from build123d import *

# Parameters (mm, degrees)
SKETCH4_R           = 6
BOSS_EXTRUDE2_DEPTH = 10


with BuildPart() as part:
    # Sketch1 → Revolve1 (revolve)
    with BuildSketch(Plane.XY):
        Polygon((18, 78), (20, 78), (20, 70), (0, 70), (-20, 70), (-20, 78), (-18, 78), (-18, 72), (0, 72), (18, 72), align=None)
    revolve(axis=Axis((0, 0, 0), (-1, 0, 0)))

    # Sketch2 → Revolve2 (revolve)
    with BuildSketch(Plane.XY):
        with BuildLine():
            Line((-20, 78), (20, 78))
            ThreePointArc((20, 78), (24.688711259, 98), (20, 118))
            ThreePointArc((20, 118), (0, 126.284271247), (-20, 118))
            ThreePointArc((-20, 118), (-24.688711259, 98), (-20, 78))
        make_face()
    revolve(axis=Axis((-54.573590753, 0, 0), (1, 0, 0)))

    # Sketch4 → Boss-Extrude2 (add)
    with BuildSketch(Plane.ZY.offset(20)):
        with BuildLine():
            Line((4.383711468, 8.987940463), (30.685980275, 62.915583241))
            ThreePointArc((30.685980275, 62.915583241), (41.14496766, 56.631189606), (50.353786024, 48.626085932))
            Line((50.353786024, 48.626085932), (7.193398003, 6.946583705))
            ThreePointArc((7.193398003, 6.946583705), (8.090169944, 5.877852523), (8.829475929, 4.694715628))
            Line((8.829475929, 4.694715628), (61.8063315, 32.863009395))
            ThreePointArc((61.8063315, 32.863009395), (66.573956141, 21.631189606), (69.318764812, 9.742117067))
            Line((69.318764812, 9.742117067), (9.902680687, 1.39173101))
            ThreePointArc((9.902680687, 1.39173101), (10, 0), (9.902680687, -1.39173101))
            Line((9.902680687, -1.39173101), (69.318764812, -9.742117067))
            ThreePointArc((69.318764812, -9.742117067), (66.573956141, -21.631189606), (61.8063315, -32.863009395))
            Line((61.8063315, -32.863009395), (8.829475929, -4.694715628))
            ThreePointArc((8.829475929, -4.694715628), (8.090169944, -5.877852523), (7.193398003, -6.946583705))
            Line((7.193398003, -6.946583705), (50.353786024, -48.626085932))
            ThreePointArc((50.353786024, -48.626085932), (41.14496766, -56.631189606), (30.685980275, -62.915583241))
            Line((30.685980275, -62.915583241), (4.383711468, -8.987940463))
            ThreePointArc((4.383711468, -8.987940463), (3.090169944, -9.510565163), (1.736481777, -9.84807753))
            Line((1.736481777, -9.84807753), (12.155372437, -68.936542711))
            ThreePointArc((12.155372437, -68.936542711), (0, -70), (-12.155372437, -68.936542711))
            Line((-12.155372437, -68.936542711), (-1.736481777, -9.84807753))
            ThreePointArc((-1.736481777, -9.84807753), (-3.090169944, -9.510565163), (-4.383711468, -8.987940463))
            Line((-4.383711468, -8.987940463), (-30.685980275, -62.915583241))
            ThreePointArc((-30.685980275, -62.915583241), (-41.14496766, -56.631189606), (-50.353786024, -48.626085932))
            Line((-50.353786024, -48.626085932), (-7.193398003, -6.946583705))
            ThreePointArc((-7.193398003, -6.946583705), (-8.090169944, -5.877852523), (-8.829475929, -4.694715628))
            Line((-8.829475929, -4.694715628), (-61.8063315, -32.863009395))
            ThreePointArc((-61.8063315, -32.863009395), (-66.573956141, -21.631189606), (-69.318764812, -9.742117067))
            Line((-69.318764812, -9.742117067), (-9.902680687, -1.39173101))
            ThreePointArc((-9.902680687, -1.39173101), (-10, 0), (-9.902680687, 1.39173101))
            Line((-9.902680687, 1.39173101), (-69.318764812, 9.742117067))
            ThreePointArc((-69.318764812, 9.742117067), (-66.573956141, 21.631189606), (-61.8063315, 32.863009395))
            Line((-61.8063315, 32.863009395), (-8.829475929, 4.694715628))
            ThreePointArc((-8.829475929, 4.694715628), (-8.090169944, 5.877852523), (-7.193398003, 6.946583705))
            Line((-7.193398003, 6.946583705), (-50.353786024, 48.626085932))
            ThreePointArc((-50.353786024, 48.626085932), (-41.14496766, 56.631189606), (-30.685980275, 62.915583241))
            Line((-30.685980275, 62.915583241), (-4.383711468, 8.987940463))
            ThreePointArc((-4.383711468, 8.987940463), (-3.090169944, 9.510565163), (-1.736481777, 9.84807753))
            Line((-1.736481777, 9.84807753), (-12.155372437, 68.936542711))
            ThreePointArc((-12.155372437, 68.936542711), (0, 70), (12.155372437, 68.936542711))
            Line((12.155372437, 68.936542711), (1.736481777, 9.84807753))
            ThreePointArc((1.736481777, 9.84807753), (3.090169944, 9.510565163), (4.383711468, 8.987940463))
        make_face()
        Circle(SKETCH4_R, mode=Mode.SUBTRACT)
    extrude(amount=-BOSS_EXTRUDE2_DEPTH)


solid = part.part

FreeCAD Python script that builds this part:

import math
import FreeCAD as App
import Part
import Sketcher
Q = App.Units.Quantity

doc = App.newDocument("Part")
body = doc.addObject("PartDesign::Body", "Body")

# Sketch on XY plane
sketch1 = body.newObject("Sketcher::SketchObject", "Sketch")
sketch1.AttachmentSupport = (doc.getObject("XY_Plane"), [""])
sketch1.MapMode = "FlatFace"
sketch1.addGeometry(Part.LineSegment(App.Vector(20, 78, 0), App.Vector(18, 78, 0)), False)
sketch1.addGeometry(Part.LineSegment(App.Vector(18, 78, 0), App.Vector(18, 72, 0)), False)
sketch1.addGeometry(Part.LineSegment(App.Vector(18, 72, 0), App.Vector(-18, 72, 0)), False)
sketch1.addGeometry(Part.LineSegment(App.Vector(-18, 72, 0), App.Vector(-18, 78, 0)), False)
sketch1.addGeometry(Part.LineSegment(App.Vector(-18, 78, 0), App.Vector(-20, 78, 0)), False)
sketch1.addGeometry(Part.LineSegment(App.Vector(-20, 78, 0), App.Vector(-20, 70, 0)), False)
sketch1.addGeometry(Part.LineSegment(App.Vector(-20, 70, 0), App.Vector(20, 70, 0)), False)
sketch1.addGeometry(Part.LineSegment(App.Vector(20, 70, 0), App.Vector(20, 78, 0)), False)
sketch1.addConstraint(Sketcher.Constraint("Coincident", 0, 2, 1, 1))
sketch1.addConstraint(Sketcher.Constraint("Coincident", 1, 2, 2, 1))
sketch1.addConstraint(Sketcher.Constraint("Coincident", 2, 2, 3, 1))
sketch1.addConstraint(Sketcher.Constraint("Coincident", 3, 2, 4, 1))
sketch1.addConstraint(Sketcher.Constraint("Coincident", 4, 2, 5, 1))
sketch1.addConstraint(Sketcher.Constraint("Coincident", 5, 2, 6, 1))
sketch1.addConstraint(Sketcher.Constraint("Coincident", 6, 2, 7, 1))
sketch1.addConstraint(Sketcher.Constraint("Coincident", 7, 2, 0, 1))
sketch1.addConstraint(Sketcher.Constraint("Horizontal", 0))
sketch1.addConstraint(Sketcher.Constraint("Vertical", 1))
sketch1.addConstraint(Sketcher.Constraint("Horizontal", 2))
sketch1.addConstraint(Sketcher.Constraint("Vertical", 3))
sketch1.addConstraint(Sketcher.Constraint("Horizontal", 4))
sketch1.addConstraint(Sketcher.Constraint("Vertical", 5))
sketch1.addConstraint(Sketcher.Constraint("Horizontal", 6))
sketch1.addConstraint(Sketcher.Constraint("Vertical", 7))
sketch1.addConstraint(Sketcher.Constraint("Symmetric", 0, 2, 3, 2, -2))
sketch1.addConstraint(Sketcher.Constraint("Equal", 0, 4))
sketch1.addConstraint(Sketcher.Constraint("DistanceX", 0, 2, 0, 1, Q("2 mm")))
sketch1.addConstraint(Sketcher.Constraint("DistanceX", 2, 2, 2, 1, Q("36 mm")))
sketch1.addConstraint(Sketcher.Constraint("DistanceY", 1, 2, 1, 1, Q("6 mm")))
sketch1.addConstraint(Sketcher.Constraint("DistanceY", 5, 2, 5, 1, Q("8 mm")))
sketch1.addConstraint(Sketcher.Constraint("DistanceY", -1, 1, 0, 2, Q("78 mm")))
revolution = body.newObject("PartDesign::Revolution", "Revolution")
revolution.Profile = sketch1
revolution.ReferenceAxis = (sketch1, ["H_Axis"])
revolution.Angle = 360

# Sketch on XY plane
sketch2 = body.newObject("Sketcher::SketchObject", "Sketch001")
sketch2.AttachmentSupport = (doc.getObject("XY_Plane"), [""])
sketch2.MapMode = "FlatFace"
sketch2.addGeometry(Part.LineSegment(App.Vector(-20, 78, 0), App.Vector(20, 78, 0)), False)
sketch2.addGeometry(Part.ArcOfCircle(Part.Circle(App.Vector(-20, 98, 0), App.Vector(0, 0, 1), 45), math.radians(-26), math.radians(26)), False)
sketch2.addGeometry(Part.ArcOfCircle(Part.Circle(App.Vector(0, 98, 0), App.Vector(0, 0, 1), 28), math.radians(45), math.radians(135)), False)
sketch2.addGeometry(Part.ArcOfCircle(Part.Circle(App.Vector(20, 98, 0), App.Vector(0, 0, 1), 45), math.radians(154), math.radians(206)), False)
sketch2.addConstraint(Sketcher.Constraint("Coincident", 0, 2, 1, 1))
sketch2.addConstraint(Sketcher.Constraint("Coincident", 1, 2, 2, 1))
sketch2.addConstraint(Sketcher.Constraint("Coincident", 2, 2, 3, 1))
sketch2.addConstraint(Sketcher.Constraint("Coincident", 3, 2, 0, 1))
sketch2.addConstraint(Sketcher.Constraint("Horizontal", 0))
sketch2.addConstraint(Sketcher.Constraint("Equal", 1, 3))
sketch2.addConstraint(Sketcher.Constraint("Symmetric", 1, 3, 3, 3, -2))
sketch2.addConstraint(Sketcher.Constraint("PointOnObject", 2, 3, -2))
sketch2.addConstraint(Sketcher.Constraint("Horizontal", 1, 3, 2, 3))
sketch2.addConstraint(Sketcher.Constraint("Vertical", 0, 2, 1, 2))
sketch2.addConstraint(Sketcher.Constraint("Radius", 1, Q("45 mm")))
sketch2.addConstraint(Sketcher.Constraint("DistanceX", 0, 1, 0, 2, Q("40 mm")))
sketch2.addConstraint(Sketcher.Constraint("DistanceY", -1, 1, 1, 3, Q("98 mm")))
sketch2.addConstraint(Sketcher.Constraint("DistanceY", -1, 1, 0, 2, Q("78 mm")))
revolution2 = body.newObject("PartDesign::Revolution", "Revolution001")
revolution2.Profile = sketch2
revolution2.ReferenceAxis = (sketch2, ["H_Axis"])
revolution2.Angle = 360

# Sketch on YZ plane
sketch3 = body.newObject("Sketcher::SketchObject", "Sketch002")
sketch3.AttachmentSupport = (doc.getObject("YZ_Plane"), [""])
sketch3.MapMode = "FlatFace"
sketch3.AttachmentOffset = App.Placement(App.Vector(0, 0, -20), App.Rotation())
sketch3.addGeometry(Part.LineSegment(App.Vector(62.9, 30.7, 0), App.Vector(9, 4.4, 0)), False)
sketch3.addGeometry(Part.ArcOfCircle(Part.Circle(App.Vector(0, 0, 0), App.Vector(0, 0, 1), 10), math.radians(10), math.radians(26)), False)
sketch3.addGeometry(Part.LineSegment(App.Vector(9.8, 1.7, 0), App.Vector(68.9, 12.2, 0)), False)
sketch3.addGeometry(Part.ArcOfCircle(Part.Circle(App.Vector(0, 0, 0), App.Vector(0, 0, 1), 70), math.radians(-10), math.radians(10)), False)
sketch3.addGeometry(Part.LineSegment(App.Vector(68.9, -12.2, 0), App.Vector(9.8, -1.7, 0)), False)
sketch3.addGeometry(Part.ArcOfCircle(Part.Circle(App.Vector(0, 0, 0), App.Vector(0, 0, 1), 10), math.radians(-26), math.radians(-10)), False)
sketch3.addGeometry(Part.LineSegment(App.Vector(9, -4.4, 0), App.Vector(62.9, -30.7, 0)), False)
sketch3.addGeometry(Part.ArcOfCircle(Part.Circle(App.Vector(0, 0, 0), App.Vector(0, 0, 1), 70), math.radians(-46), math.radians(-26)), False)
sketch3.addGeometry(Part.LineSegment(App.Vector(48.6, -50.4, 0), App.Vector(6.9, -7.2, 0)), False)
sketch3.addGeometry(Part.ArcOfCircle(Part.Circle(App.Vector(0, 0, 0), App.Vector(0, 0, 1), 10), math.radians(-62), math.radians(-46)), False)
sketch3.addGeometry(Part.LineSegment(App.Vector(4.7, -8.8, 0), App.Vector(32.9, -61.8, 0)), False)
sketch3.addGeometry(Part.ArcOfCircle(Part.Circle(App.Vector(0, 0, 0), App.Vector(0, 0, 1), 70), math.radians(-82), math.radians(-62)), False)
sketch3.addGeometry(Part.LineSegment(App.Vector(9.7, -69.3, 0), App.Vector(1.4, -9.9, 0)), False)
sketch3.addGeometry(Part.ArcOfCircle(Part.Circle(App.Vector(0, 0, 0), App.Vector(0, 0, 1), 10), math.radians(-98), math.radians(-82)), False)
sketch3.addGeometry(Part.LineSegment(App.Vector(-1.4, -9.9, 0), App.Vector(-9.7, -69.3, 0)), False)
sketch3.addGeometry(Part.ArcOfCircle(Part.Circle(App.Vector(0, 0, 0), App.Vector(0, 0, 1), 70), math.radians(-118), math.radians(-98)), False)
sketch3.addGeometry(Part.LineSegment(App.Vector(-32.9, -61.8, 0), App.Vector(-4.7, -8.8, 0)), False)
sketch3.addGeometry(Part.ArcOfCircle(Part.Circle(App.Vector(0, 0, 0), App.Vector(0, 0, 1), 10), math.radians(-134), math.radians(-118)), False)
sketch3.addGeometry(Part.LineSegment(App.Vector(-6.9, -7.2, 0), App.Vector(-48.6, -50.4, 0)), False)
sketch3.addGeometry(Part.ArcOfCircle(Part.Circle(App.Vector(0, 0, 0), App.Vector(0, 0, 1), 70), math.radians(-154), math.radians(-134)), False)
sketch3.addGeometry(Part.LineSegment(App.Vector(-62.9, -30.7, 0), App.Vector(-9, -4.4, 0)), False)
sketch3.addGeometry(Part.ArcOfCircle(Part.Circle(App.Vector(0, 0, 0), App.Vector(0, 0, 1), 10), math.radians(-170), math.radians(-154)), False)
sketch3.addGeometry(Part.LineSegment(App.Vector(-9.8, -1.7, 0), App.Vector(-68.9, -12.2, 0)), False)
sketch3.addGeometry(Part.ArcOfCircle(Part.Circle(App.Vector(0, 0, 0), App.Vector(0, 0, 1), 70), math.radians(170), math.radians(190)), False)
sketch3.addGeometry(Part.LineSegment(App.Vector(-68.9, 12.2, 0), App.Vector(-9.8, 1.7, 0)), False)
sketch3.addGeometry(Part.ArcOfCircle(Part.Circle(App.Vector(0, 0, 0), App.Vector(0, 0, 1), 10), math.radians(154), math.radians(170)), False)
sketch3.addGeometry(Part.LineSegment(App.Vector(-9, 4.4, 0), App.Vector(-62.9, 30.7, 0)), False)
sketch3.addGeometry(Part.ArcOfCircle(Part.Circle(App.Vector(0, 0, 0), App.Vector(0, 0, 1), 70), math.radians(134), math.radians(154)), False)
sketch3.addGeometry(Part.LineSegment(App.Vector(-48.6, 50.4, 0), App.Vector(-6.9, 7.2, 0)), False)
sketch3.addGeometry(Part.ArcOfCircle(Part.Circle(App.Vector(0, 0, 0), App.Vector(0, 0, 1), 10), math.radians(118), math.radians(134)), False)
sketch3.addGeometry(Part.LineSegment(App.Vector(-4.7, 8.8, 0), App.Vector(-32.9, 61.8, 0)), False)
sketch3.addGeometry(Part.ArcOfCircle(Part.Circle(App.Vector(0, 0, 0), App.Vector(0, 0, 1), 70), math.radians(98), math.radians(118)), False)
sketch3.addGeometry(Part.LineSegment(App.Vector(-9.7, 69.3, 0), App.Vector(-1.4, 9.9, 0)), False)
sketch3.addGeometry(Part.ArcOfCircle(Part.Circle(App.Vector(0, 0, 0), App.Vector(0, 0, 1), 10), math.radians(82), math.radians(98)), False)
sketch3.addGeometry(Part.LineSegment(App.Vector(1.4, 9.9, 0), App.Vector(9.7, 69.3, 0)), False)
sketch3.addGeometry(Part.ArcOfCircle(Part.Circle(App.Vector(0, 0, 0), App.Vector(0, 0, 1), 70), math.radians(62), math.radians(82)), False)
sketch3.addGeometry(Part.LineSegment(App.Vector(32.9, 61.8, 0), App.Vector(4.7, 8.8, 0)), False)
sketch3.addGeometry(Part.ArcOfCircle(Part.Circle(App.Vector(0, 0, 0), App.Vector(0, 0, 1), 10), math.radians(46), math.radians(62)), False)
sketch3.addGeometry(Part.LineSegment(App.Vector(6.9, 7.2, 0), App.Vector(48.6, 50.4, 0)), False)
sketch3.addGeometry(Part.ArcOfCircle(Part.Circle(App.Vector(0, 0, 0), App.Vector(0, 0, 1), 70), math.radians(26), math.radians(46)), False)
sketch3.addGeometry(Part.Circle(App.Vector(0, 0, 0), App.Vector(0, 0, 1), 6), False)
sketch3.addConstraint(Sketcher.Constraint("Coincident", 0, 2, 1, 2))
sketch3.addConstraint(Sketcher.Constraint("Coincident", 1, 1, 2, 1))
sketch3.addConstraint(Sketcher.Constraint("Coincident", 2, 2, 3, 2))
sketch3.addConstraint(Sketcher.Constraint("Coincident", 3, 1, 4, 1))
sketch3.addConstraint(Sketcher.Constraint("Coincident", 4, 2, 5, 2))
sketch3.addConstraint(Sketcher.Constraint("Coincident", 5, 1, 6, 1))
sketch3.addConstraint(Sketcher.Constraint("Coincident", 6, 2, 7, 2))
sketch3.addConstraint(Sketcher.Constraint("Coincident", 7, 1, 8, 1))
sketch3.addConstraint(Sketcher.Constraint("Coincident", 8, 2, 9, 2))
sketch3.addConstraint(Sketcher.Constraint("Coincident", 9, 1, 10, 1))
sketch3.addConstraint(Sketcher.Constraint("Coincident", 10, 2, 11, 2))
sketch3.addConstraint(Sketcher.Constraint("Coincident", 11, 1, 12, 1))
sketch3.addConstraint(Sketcher.Constraint("Coincident", 12, 2, 13, 2))
sketch3.addConstraint(Sketcher.Constraint("Coincident", 13, 1, 14, 1))
sketch3.addConstraint(Sketcher.Constraint("Coincident", 14, 2, 15, 2))
sketch3.addConstraint(Sketcher.Constraint("Coincident", 15, 1, 16, 1))
sketch3.addConstraint(Sketcher.Constraint("Coincident", 16, 2, 17, 2))
sketch3.addConstraint(Sketcher.Constraint("Coincident", 17, 1, 18, 1))
sketch3.addConstraint(Sketcher.Constraint("Coincident", 18, 2, 19, 2))
sketch3.addConstraint(Sketcher.Constraint("Coincident", 19, 1, 20, 1))
sketch3.addConstraint(Sketcher.Constraint("Coincident", 20, 2, 21, 2))
sketch3.addConstraint(Sketcher.Constraint("Coincident", 21, 1, 22, 1))
sketch3.addConstraint(Sketcher.Constraint("Coincident", 22, 2, 23, 2))
sketch3.addConstraint(Sketcher.Constraint("Coincident", 23, 1, 24, 1))
sketch3.addConstraint(Sketcher.Constraint("Coincident", 24, 2, 25, 2))
sketch3.addConstraint(Sketcher.Constraint("Coincident", 25, 1, 26, 1))
sketch3.addConstraint(Sketcher.Constraint("Coincident", 26, 2, 27, 2))
sketch3.addConstraint(Sketcher.Constraint("Coincident", 27, 1, 28, 1))
sketch3.addConstraint(Sketcher.Constraint("Coincident", 28, 2, 29, 2))
sketch3.addConstraint(Sketcher.Constraint("Coincident", 29, 1, 30, 1))
sketch3.addConstraint(Sketcher.Constraint("Coincident", 30, 2, 31, 2))
sketch3.addConstraint(Sketcher.Constraint("Coincident", 31, 1, 32, 1))
sketch3.addConstraint(Sketcher.Constraint("Coincident", 32, 2, 33, 2))
sketch3.addConstraint(Sketcher.Constraint("Coincident", 33, 1, 34, 1))
sketch3.addConstraint(Sketcher.Constraint("Coincident", 34, 2, 35, 2))
sketch3.addConstraint(Sketcher.Constraint("Coincident", 35, 1, 36, 1))
sketch3.addConstraint(Sketcher.Constraint("Coincident", 36, 2, 37, 2))
sketch3.addConstraint(Sketcher.Constraint("Coincident", 37, 1, 38, 1))
sketch3.addConstraint(Sketcher.Constraint("Coincident", 38, 2, 39, 2))
sketch3.addConstraint(Sketcher.Constraint("Coincident", 39, 1, 0, 1))
sketch3.addConstraint(Sketcher.Constraint("Coincident", 1, 3, -1, 1))
sketch3.addConstraint(Sketcher.Constraint("Coincident", 3, 3, -1, 1))
sketch3.addConstraint(Sketcher.Constraint("Coincident", 5, 3, -1, 1))
sketch3.addConstraint(Sketcher.Constraint("Coincident", 7, 3, -1, 1))
sketch3.addConstraint(Sketcher.Constraint("Coincident", 9, 3, -1, 1))
sketch3.addConstraint(Sketcher.Constraint("Coincident", 11, 3, -1, 1))
sketch3.addConstraint(Sketcher.Constraint("Coincident", 13, 3, -1, 1))
sketch3.addConstraint(Sketcher.Constraint("Coincident", 15, 3, -1, 1))
sketch3.addConstraint(Sketcher.Constraint("Coincident", 17, 3, -1, 1))
sketch3.addConstraint(Sketcher.Constraint("Coincident", 19, 3, -1, 1))
sketch3.addConstraint(Sketcher.Constraint("Coincident", 21, 3, -1, 1))
sketch3.addConstraint(Sketcher.Constraint("Coincident", 23, 3, -1, 1))
sketch3.addConstraint(Sketcher.Constraint("Coincident", 25, 3, -1, 1))
sketch3.addConstraint(Sketcher.Constraint("Coincident", 27, 3, -1, 1))
sketch3.addConstraint(Sketcher.Constraint("Coincident", 29, 3, -1, 1))
sketch3.addConstraint(Sketcher.Constraint("Coincident", 31, 3, -1, 1))
sketch3.addConstraint(Sketcher.Constraint("Coincident", 33, 3, -1, 1))
sketch3.addConstraint(Sketcher.Constraint("Coincident", 35, 3, -1, 1))
sketch3.addConstraint(Sketcher.Constraint("Coincident", 37, 3, -1, 1))
sketch3.addConstraint(Sketcher.Constraint("Coincident", 39, 3, -1, 1))
sketch3.addConstraint(Sketcher.Constraint("Coincident", 40, 3, -1, 1))
sketch3.addConstraint(Sketcher.Constraint("Equal", 1, 5))
sketch3.addConstraint(Sketcher.Constraint("Equal", 3, 7))
sketch3.addConstraint(Sketcher.Constraint("Equal", 5, 9))
sketch3.addConstraint(Sketcher.Constraint("Equal", 7, 11))
sketch3.addConstraint(Sketcher.Constraint("Equal", 9, 13))
sketch3.addConstraint(Sketcher.Constraint("Equal", 11, 15))
sketch3.addConstraint(Sketcher.Constraint("Equal", 13, 17))
sketch3.addConstraint(Sketcher.Constraint("Equal", 15, 19))
sketch3.addConstraint(Sketcher.Constraint("Equal", 17, 21))
sketch3.addConstraint(Sketcher.Constraint("Equal", 19, 23))
sketch3.addConstraint(Sketcher.Constraint("Equal", 21, 25))
sketch3.addConstraint(Sketcher.Constraint("Equal", 23, 27))
sketch3.addConstraint(Sketcher.Constraint("Equal", 25, 29))
sketch3.addConstraint(Sketcher.Constraint("Equal", 27, 31))
sketch3.addConstraint(Sketcher.Constraint("Equal", 29, 33))
sketch3.addConstraint(Sketcher.Constraint("Equal", 31, 35))
sketch3.addConstraint(Sketcher.Constraint("Equal", 33, 37))
sketch3.addConstraint(Sketcher.Constraint("Equal", 35, 39))
sketch3.addConstraint(Sketcher.Constraint("Parallel", 0, 20))
sketch3.addConstraint(Sketcher.Constraint("Parallel", 2, 22))
sketch3.addConstraint(Sketcher.Constraint("Parallel", 4, 24))
sketch3.addConstraint(Sketcher.Constraint("Parallel", 6, 26))
sketch3.addConstraint(Sketcher.Constraint("Parallel", 8, 28))
sketch3.addConstraint(Sketcher.Constraint("Parallel", 10, 30))
sketch3.addConstraint(Sketcher.Constraint("Parallel", 12, 32))
sketch3.addConstraint(Sketcher.Constraint("Parallel", 14, 34))
sketch3.addConstraint(Sketcher.Constraint("Parallel", 16, 36))
sketch3.addConstraint(Sketcher.Constraint("Parallel", 18, 38))
sketch3.addConstraint(Sketcher.Constraint("Horizontal", 12, 2, 13, 1))
sketch3.addConstraint(Sketcher.Constraint("Horizontal", 11, 1, 14, 2))
sketch3.addConstraint(Sketcher.Constraint("Horizontal", 10, 2, 15, 1))
sketch3.addConstraint(Sketcher.Constraint("Horizontal", 9, 1, 16, 2))
sketch3.addConstraint(Sketcher.Constraint("Horizontal", 8, 2, 17, 1))
sketch3.addConstraint(Sketcher.Constraint("Horizontal", 7, 1, 18, 2))
sketch3.addConstraint(Sketcher.Constraint("Horizontal", 6, 2, 19, 1))
sketch3.addConstraint(Sketcher.Constraint("Horizontal", 5, 1, 20, 2))
sketch3.addConstraint(Sketcher.Constraint("Horizontal", 4, 2, 21, 1))
sketch3.addConstraint(Sketcher.Constraint("Horizontal", 3, 1, 22, 2))
sketch3.addConstraint(Sketcher.Constraint("Horizontal", 2, 2, 23, 1))
sketch3.addConstraint(Sketcher.Constraint("Horizontal", 0, 2, 25, 1))
sketch3.addConstraint(Sketcher.Constraint("Horizontal", 32, 2, 33, 1))
sketch3.addConstraint(Sketcher.Constraint("Horizontal", 30, 2, 35, 1))
sketch3.addConstraint(Sketcher.Constraint("Horizontal", 28, 2, 37, 1))
sketch3.addConstraint(Sketcher.Constraint("Vertical", 2, 2, 3, 1))
sketch3.addConstraint(Sketcher.Constraint("Vertical", 0, 2, 5, 1))
sketch3.addConstraint(Sketcher.Constraint("Vertical", 18, 2, 27, 1))
sketch3.addConstraint(Sketcher.Constraint("Vertical", 16, 2, 29, 1))
sketch3.addConstraint(Sketcher.Constraint("Vertical", 14, 2, 31, 1))
sketch3.addConstraint(Sketcher.Constraint("Diameter", 40, Q("12 mm")))
sketch3.addConstraint(Sketcher.Constraint("Radius", 1, Q("10 mm")))
sketch3.addConstraint(Sketcher.Constraint("Radius", 3, Q("70 mm")))
sketch3.addConstraint(Sketcher.Constraint("Angle", 0, Q("-154 deg")))
sketch3.addConstraint(Sketcher.Constraint("Angle", 2, Q("10 deg")))
sketch3.addConstraint(Sketcher.Constraint("Angle", 8, Q("134 deg")))
sketch3.addConstraint(Sketcher.Constraint("Angle", 10, Q("-62 deg")))
sketch3.addConstraint(Sketcher.Constraint("Angle", 12, Q("98 deg")))
sketch3.addConstraint(Sketcher.Constraint("DistanceY", 8, 2, -1, 1, Q("7.193398 mm")))
sketch3.addConstraint(Sketcher.Constraint("DistanceX", -1, 1, 0, 2, Q("8.98794 mm")))
sketch3.addConstraint(Sketcher.Constraint("DistanceY", -1, 1, 1, 1, Q("1.736482 mm")))
sketch3.addConstraint(Sketcher.Constraint("DistanceX", -1, 1, 10, 2, Q("32.863009 mm")))
sketch3.addConstraint(Sketcher.Constraint("DistanceX", -1, 1, 12, 2, Q("1.391731 mm")))
pad1 = body.newObject("PartDesign::Pad", "Pad")
pad1.Profile = sketch3
pad1.Length = 10

doc.recompute()
